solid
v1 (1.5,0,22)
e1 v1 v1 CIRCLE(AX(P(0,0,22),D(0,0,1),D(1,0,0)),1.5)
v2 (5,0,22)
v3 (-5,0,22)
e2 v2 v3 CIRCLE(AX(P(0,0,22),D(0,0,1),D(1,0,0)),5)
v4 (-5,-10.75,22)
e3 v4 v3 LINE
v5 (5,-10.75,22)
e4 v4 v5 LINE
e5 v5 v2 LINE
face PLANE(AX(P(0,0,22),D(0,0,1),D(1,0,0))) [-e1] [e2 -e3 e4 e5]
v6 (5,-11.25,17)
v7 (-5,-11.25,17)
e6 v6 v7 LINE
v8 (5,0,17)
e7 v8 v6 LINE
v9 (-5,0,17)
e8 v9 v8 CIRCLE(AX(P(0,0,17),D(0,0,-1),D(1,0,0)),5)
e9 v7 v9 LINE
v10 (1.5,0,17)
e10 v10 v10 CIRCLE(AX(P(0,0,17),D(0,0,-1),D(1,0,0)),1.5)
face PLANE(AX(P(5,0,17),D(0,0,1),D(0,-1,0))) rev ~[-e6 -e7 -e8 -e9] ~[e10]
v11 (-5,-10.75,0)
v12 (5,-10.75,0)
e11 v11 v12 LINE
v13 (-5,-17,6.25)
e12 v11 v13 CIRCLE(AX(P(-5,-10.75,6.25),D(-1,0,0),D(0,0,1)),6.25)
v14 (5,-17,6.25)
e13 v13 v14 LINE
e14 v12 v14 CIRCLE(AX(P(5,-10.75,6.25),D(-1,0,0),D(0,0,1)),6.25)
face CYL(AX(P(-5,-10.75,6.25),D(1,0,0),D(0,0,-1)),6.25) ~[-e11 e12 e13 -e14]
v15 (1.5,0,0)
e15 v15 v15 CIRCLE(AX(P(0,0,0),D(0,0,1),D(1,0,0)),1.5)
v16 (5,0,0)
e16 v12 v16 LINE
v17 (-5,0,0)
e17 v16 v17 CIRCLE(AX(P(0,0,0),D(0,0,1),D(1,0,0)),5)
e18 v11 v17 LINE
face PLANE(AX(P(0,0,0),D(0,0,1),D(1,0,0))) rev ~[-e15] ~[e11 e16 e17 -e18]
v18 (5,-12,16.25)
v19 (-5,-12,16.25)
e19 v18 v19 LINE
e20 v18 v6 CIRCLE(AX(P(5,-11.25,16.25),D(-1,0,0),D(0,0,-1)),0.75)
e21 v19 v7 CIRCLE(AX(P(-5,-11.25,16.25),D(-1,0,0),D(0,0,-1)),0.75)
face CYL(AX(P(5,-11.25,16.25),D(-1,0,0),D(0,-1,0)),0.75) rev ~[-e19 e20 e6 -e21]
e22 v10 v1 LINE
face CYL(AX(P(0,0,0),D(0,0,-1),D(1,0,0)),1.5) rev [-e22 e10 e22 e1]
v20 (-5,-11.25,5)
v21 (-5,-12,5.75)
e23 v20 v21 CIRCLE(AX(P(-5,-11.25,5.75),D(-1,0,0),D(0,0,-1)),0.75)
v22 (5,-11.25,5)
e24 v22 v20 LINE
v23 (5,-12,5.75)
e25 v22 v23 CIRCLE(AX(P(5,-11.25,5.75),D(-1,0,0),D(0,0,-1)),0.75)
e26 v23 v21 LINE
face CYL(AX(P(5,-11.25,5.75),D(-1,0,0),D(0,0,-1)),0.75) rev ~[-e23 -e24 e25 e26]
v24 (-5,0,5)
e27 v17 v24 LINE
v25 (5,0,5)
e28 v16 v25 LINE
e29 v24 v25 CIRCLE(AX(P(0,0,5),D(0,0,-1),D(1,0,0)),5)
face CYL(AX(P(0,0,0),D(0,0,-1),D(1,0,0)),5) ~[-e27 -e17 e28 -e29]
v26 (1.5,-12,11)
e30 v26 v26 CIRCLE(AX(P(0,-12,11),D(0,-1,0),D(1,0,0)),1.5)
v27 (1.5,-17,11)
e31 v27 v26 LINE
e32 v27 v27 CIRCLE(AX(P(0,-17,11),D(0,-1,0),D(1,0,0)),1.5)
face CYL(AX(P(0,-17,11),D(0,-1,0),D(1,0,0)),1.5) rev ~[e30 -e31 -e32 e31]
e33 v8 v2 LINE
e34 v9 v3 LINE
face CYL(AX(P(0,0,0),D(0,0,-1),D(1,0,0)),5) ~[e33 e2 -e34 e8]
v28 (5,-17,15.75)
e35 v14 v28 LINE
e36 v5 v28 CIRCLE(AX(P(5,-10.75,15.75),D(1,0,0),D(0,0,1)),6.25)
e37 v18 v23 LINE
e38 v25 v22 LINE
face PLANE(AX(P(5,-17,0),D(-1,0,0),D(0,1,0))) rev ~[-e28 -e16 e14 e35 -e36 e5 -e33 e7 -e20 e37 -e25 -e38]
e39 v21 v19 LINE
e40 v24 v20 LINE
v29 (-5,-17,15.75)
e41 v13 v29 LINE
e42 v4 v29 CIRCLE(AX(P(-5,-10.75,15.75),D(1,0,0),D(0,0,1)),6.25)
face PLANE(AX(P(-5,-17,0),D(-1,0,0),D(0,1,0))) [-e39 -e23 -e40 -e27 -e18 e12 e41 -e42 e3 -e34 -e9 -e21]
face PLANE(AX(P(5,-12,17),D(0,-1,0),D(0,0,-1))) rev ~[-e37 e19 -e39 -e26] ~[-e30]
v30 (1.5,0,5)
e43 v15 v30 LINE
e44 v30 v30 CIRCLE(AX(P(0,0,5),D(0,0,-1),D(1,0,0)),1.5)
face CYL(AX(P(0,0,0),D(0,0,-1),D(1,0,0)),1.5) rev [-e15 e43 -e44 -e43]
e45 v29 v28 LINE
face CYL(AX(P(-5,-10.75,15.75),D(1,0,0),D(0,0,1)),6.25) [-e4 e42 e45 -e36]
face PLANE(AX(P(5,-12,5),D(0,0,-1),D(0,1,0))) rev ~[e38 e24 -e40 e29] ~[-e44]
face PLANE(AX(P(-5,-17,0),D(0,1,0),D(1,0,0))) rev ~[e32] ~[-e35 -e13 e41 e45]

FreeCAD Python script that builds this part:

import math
import FreeCAD as App
import Part
import Sketcher

V = App.Vector
Q = App.Units.Quantity


def edges_at(feature, points):
    """Names of the edges that pass closest to the given points."""
    edges = feature.Shape.Edges
    near = lambda p: min(range(len(edges)), key=lambda i: edges[i].distToShape(Part.Vertex(*p))[0])
    return sorted({f"Edge{near(p) + 1}" for p in points})


def add_polygon(sketch, points):
    """Adds a closed chain of lines whose ends are joined by coincident constraints."""
    first, n = sketch.GeometryCount, len(points)
    for a, b in zip(points, points[1:] + points[:1]):
        sketch.addGeometry(Part.LineSegment(App.Vector(*a, 0), App.Vector(*b, 0)), False)
    for i in range(n):
        sketch.addConstraint(Sketcher.Constraint("Coincident", first + i, 2, first + (i + 1) % n, 1))

doc = App.newDocument("Part")
params = doc.addObject("Spreadsheet::Sheet", "Params")
for row, (alias, value) in enumerate([
    ("sketch1_diameter", "3 mm"),
    ("sketch1_radius", "5 mm"),
    ("sketch1_height", "17 mm"),
    ("pad1_length", "22 mm"),
    ("sketch2_width", "20 mm"),
    ("sketch2_height", "12 mm"),
    ("pocket1_length", "22 mm"),
    ("sketch3_diameter", "3 mm"),
    ("pocket2_length", "6 mm"),
    ("fillet_radius", "6.25 mm"),
    ("fillet2_radius", "0.75 mm"),
], start=1):
    params.set(f"A{row}", alias)
    params.set(f"B{row}", "=" + value)
    params.setAlias(f"B{row}", alias)

body = doc.addObject("PartDesign::Body", "Body")

sketch1 = doc.addObject("Sketcher::SketchObject", "Sketch")
body.addObject(sketch1)
sketch1.AttachmentSupport = (doc.XY_Plane, [""])
sketch1.MapMode = "FlatFace"
sketch1.addGeometry([
    Part.LineSegment(V(5, -17, 0), V(5, 0, 0)),
    Part.ArcOfCircle(Part.Circle(V(0, 0, 0), V(0, 0, 1), 5), math.radians(0), math.radians(180)),
    Part.LineSegment(V(-5, 0, 0), V(-5, -17, 0)),
    Part.LineSegment(V(-5, -17, 0), V(5, -17, 0)),
    Part.Circle(V(0, 0, 0), V(0, 0, 1), 1.5),
], False)
sketch1.addConstraint([
    Sketcher.Constraint("Tangent", 0, 2, 1, 1),
    Sketcher.Constraint("Tangent", 1, 2, 2, 1),
    Sketcher.Constraint("Coincident", 2, 2, 3, 1),
    Sketcher.Constraint("Coincident", 3, 2, 0, 1),
    Sketcher.Constraint("Vertical", 0),
    Sketcher.Constraint("Vertical", 2),
    Sketcher.Constraint("Horizontal", 3),
    Sketcher.Constraint("Coincident", 1, 3, -1, 1),
    Sketcher.Constraint("Coincident", 4, 3, -1, 1),
    Sketcher.Constraint("Diameter", 4, Q("3 mm")),
    Sketcher.Constraint("Radius", 1, Q("5 mm")),
    Sketcher.Constraint("DistanceY", 0, 1, 0, 2, Q("17 mm")),
])
sketch1.setExpression("Constraints[9]", "Params.sketch1_diameter")
sketch1.setExpression("Constraints[10]", "Params.sketch1_radius")
sketch1.setExpression("Constraints[11]", "Params.sketch1_height")
pad1 = doc.addObject("PartDesign::Pad", "Pad")
body.addObject(pad1)
pad1.Profile = sketch1
pad1.setExpression("Length", "Params.pad1_length")

sketch2 = doc.addObject("Sketcher::SketchObject", "Sketch001")
body.addObject(sketch2)
sketch2.AttachmentSupport = (doc.YZ_Plane, [""])
sketch2.MapMode = "FlatFace"
sketch2.AttachmentOffset = App.Placement(V(0, 0, 5), App.Rotation())
add_polygon(sketch2, [(-12, 5), (8, 5), (8, 17), (-12, 17)])
sketch2.addConstraint([
    Sketcher.Constraint("Horizontal", 0),
    Sketcher.Constraint("Vertical", 1),
    Sketcher.Constraint("Horizontal", 2),
    Sketcher.Constraint("Vertical", 3),
    Sketcher.Constraint("DistanceX", 0, 1, 0, 2, Q("20 mm")),
    Sketcher.Constraint("DistanceY", -1, 1, 0, 2, Q("5 mm")),
    Sketcher.Constraint("DistanceY", 1, 1, 1, 2, Q("12 mm")),
    Sketcher.Constraint("DistanceX", -1, 1, 0, 2, Q("8 mm")),
])
sketch2.setExpression("Constraints[8]", "Params.sketch2_width")
sketch2.setExpression("Constraints[10]", "Params.sketch2_height")
pocket1 = doc.addObject("PartDesign::Pocket", "Pocket")
body.addObject(pocket1)
pocket1.Profile = sketch2
pocket1.setExpression("Length", "Params.pocket1_length")

sketch3 = doc.addObject("Sketcher::SketchObject", "Sketch002")
body.addObject(sketch3)
sketch3.AttachmentSupport = (doc.XZ_Plane, [""])
sketch3.MapMode = "FlatFace"
sketch3.AttachmentOffset = App.Placement(V(0, 0, 17), App.Rotation())
sketch3.addGeometry(Part.Circle(V(0, 11, 0), V(0, 0, 1), 1.5), False)
sketch3.addConstraint([
    Sketcher.Constraint("PointOnObject", 0, 3, -2),
    Sketcher.Constraint("Diameter", 0, Q("3 mm")),
    Sketcher.Constraint("DistanceY", -1, 1, 0, 3, Q("11 mm")),
])
sketch3.setExpression("Constraints[1]", "Params.sketch3_diameter")
pocket2 = doc.addObject("PartDesign::Pocket", "Pocket001")
body.addObject(pocket2)
pocket2.Profile = sketch3
pocket2.setExpression("Length", "Params.pocket2_length")
doc.recompute()

fillet = doc.addObject("PartDesign::Fillet", "Fillet")
body.addObject(fillet)
fillet.Base = (pocket2, edges_at(pocket2, [(0, -17, 22), (0, -17, 0)]))
fillet.setExpression("Radius", "Params.fillet_radius")
doc.recompute()

fillet2 = doc.addObject("PartDesign::Fillet", "Fillet001")
body.addObject(fillet2)
fillet2.Base = (fillet, edges_at(fillet, [(0, -12, 17), (0, -12, 5)]))
fillet2.setExpression("Radius", "Params.fillet2_radius")

doc.recompute()
